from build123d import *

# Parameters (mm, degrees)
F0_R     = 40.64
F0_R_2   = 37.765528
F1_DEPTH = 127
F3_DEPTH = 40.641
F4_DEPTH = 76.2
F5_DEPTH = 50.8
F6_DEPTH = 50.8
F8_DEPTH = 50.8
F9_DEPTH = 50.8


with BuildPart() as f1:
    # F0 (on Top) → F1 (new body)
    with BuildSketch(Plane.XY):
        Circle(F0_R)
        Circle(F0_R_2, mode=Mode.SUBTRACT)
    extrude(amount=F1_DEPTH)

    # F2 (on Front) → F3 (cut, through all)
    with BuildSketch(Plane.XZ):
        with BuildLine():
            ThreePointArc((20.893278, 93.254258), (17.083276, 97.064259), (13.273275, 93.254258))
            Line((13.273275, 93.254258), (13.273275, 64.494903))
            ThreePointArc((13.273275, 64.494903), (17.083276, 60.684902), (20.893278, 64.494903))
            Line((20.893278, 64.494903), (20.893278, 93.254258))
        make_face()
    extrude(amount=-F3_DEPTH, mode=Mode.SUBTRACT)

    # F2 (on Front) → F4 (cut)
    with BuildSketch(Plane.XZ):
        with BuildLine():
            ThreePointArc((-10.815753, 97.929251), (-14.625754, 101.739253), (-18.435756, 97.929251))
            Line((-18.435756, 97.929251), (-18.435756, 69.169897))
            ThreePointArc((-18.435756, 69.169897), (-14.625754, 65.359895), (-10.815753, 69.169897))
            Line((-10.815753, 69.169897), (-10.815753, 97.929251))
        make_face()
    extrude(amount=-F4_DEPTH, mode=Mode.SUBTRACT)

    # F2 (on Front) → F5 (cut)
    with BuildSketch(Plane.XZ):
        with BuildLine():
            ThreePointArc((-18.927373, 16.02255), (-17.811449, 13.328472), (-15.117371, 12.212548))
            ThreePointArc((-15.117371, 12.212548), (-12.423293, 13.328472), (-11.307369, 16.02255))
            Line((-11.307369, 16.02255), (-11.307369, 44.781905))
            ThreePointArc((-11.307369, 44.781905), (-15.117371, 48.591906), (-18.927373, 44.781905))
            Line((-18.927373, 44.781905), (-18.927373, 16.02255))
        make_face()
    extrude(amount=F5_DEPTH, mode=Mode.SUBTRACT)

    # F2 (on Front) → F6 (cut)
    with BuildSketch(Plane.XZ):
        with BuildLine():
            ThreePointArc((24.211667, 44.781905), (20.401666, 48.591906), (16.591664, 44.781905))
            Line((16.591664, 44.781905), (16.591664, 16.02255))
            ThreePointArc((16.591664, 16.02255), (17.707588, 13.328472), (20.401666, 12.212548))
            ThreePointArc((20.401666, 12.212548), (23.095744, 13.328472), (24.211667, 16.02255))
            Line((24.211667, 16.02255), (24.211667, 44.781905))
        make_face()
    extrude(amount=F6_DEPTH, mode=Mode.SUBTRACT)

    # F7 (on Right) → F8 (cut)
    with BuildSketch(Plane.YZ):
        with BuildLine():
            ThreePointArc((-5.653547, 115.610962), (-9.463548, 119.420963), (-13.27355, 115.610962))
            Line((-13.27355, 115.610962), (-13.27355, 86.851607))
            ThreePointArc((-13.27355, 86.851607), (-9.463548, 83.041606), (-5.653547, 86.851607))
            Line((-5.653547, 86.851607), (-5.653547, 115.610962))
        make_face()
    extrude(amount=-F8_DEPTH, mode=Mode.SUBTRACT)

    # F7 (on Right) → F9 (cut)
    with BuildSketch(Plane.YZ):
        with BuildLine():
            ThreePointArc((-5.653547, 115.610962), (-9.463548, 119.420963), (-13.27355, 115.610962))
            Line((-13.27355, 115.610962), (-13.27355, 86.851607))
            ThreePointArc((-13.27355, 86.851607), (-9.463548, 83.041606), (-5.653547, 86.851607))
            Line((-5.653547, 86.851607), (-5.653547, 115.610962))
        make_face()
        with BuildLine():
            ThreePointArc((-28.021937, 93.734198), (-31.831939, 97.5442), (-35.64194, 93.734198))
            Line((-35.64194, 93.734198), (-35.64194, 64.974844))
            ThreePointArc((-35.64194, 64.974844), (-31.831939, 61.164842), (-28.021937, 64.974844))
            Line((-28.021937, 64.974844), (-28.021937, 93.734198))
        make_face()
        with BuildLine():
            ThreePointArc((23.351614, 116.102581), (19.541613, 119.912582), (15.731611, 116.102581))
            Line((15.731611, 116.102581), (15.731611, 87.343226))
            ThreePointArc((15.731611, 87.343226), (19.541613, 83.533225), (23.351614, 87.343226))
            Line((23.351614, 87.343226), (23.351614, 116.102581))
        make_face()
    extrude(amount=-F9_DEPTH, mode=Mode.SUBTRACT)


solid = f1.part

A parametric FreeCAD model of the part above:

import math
import FreeCAD as App
import Part
import Sketcher
Q = App.Units.Quantity

doc = App.newDocument("Part")
body = doc.addObject("PartDesign::Body", "Body")

sketch1 = body.newObject("Sketcher::SketchObject", "Sketch")
sketch1.AttachmentSupport = (doc.getObject("XY_Plane"), [""])
sketch1.MapMode = "FlatFace"
sketch1.addGeometry(Part.Circle(App.Vector(0, 0, 0), App.Vector(0, 0, 1), 40.64), False)
sketch1.addGeometry(Part.Circle(App.Vector(0, 0, 0), App.Vector(0, 0, 1), 37.765528), False)
sketch1.addConstraint(Sketcher.Constraint("Coincident", 0, 3, -1, 1))
sketch1.addConstraint(Sketcher.Constraint("Coincident", 1, 3, -1, 1))
sketch1.addConstraint(Sketcher.Constraint("Diameter", 0, Q("3.2 in")))
sketch1.addConstraint(Sketcher.Constraint("Diameter", 1, Q("75.531056 mm")))
pad1 = body.newObject("PartDesign::Pad", "Pad")
pad1.Profile = sketch1
pad1.Length = Q("5 in")

sketch2 = body.newObject("Sketcher::SketchObject", "Sketch001")
sketch2.AttachmentSupport = (doc.getObject("XZ_Plane"), [""])
sketch2.MapMode = "FlatFace"
sketch2.addGeometry(Part.ArcOfCircle(Part.Circle(App.Vector(17.083277, 93.254257, 0), App.Vector(0, 0, 1), 3.810001), math.radians(0.000008), math.radians(179.999992)), False)
sketch2.addGeometry(Part.LineSegment(App.Vector(13.273275, 93.254258, 0), App.Vector(13.273275, 64.494903, 0)), False)
sketch2.addGeometry(Part.ArcOfCircle(Part.Circle(App.Vector(17.083277, 64.494904, 0), App.Vector(0, 0, 1), 3.810001), math.radians(-179.999992), math.radians(-0.000008)), False)
sketch2.addGeometry(Part.LineSegment(App.Vector(20.893278, 64.494903, 0), App.Vector(20.893278, 93.254258, 0)), False)
sketch2.addConstraint(Sketcher.Constraint("Tangent", 0, 2, 1, 1))
sketch2.addConstraint(Sketcher.Constraint("Tangent", 1, 2, 2, 1))
sketch2.addConstraint(Sketcher.Constraint("Tangent", 2, 2, 3, 1))
sketch2.addConstraint(Sketcher.Constraint("Tangent", 3, 2, 0, 1))
sketch2.addConstraint(Sketcher.Constraint("Vertical", 1))
sketch2.addConstraint(Sketcher.Constraint("Vertical", 3))
sketch2.addConstraint(Sketcher.Constraint("Radius", 0, Q("0.1500001 in")))
sketch2.addConstraint(Sketcher.Constraint("DistanceY", 1, 2, 1, 1, Q("28.759355 mm")))
sketch2.addConstraint(Sketcher.Constraint("DistanceX", -1, 1, 0, 3, Q("17.083277 mm")))
sketch2.addConstraint(Sketcher.Constraint("DistanceY", -1, 1, 0, 3, Q("93.254257 mm")))
pocket1 = body.newObject("PartDesign::Pocket", "Pocket")
pocket1.Profile = sketch2
pocket1.Type = "ThroughAll"

sketch3 = body.newObject("Sketcher::SketchObject", "Sketch002")
sketch3.AttachmentSupport = (doc.getObject("XZ_Plane"), [""])
sketch3.MapMode = "FlatFace"
sketch3.addGeometry(Part.ArcOfCircle(Part.Circle(App.Vector(-14.625754, 97.929252, 0), App.Vector(0, 0, 1), 3.810001), math.radians(-0.000008), math.radians(180.000008)), False)
sketch3.addGeometry(Part.LineSegment(App.Vector(-18.435756, 97.929251, 0), App.Vector(-18.435756, 69.169897, 0)), False)
sketch3.addGeometry(Part.ArcOfCircle(Part.Circle(App.Vector(-14.625754, 69.169896, 0), App.Vector(0, 0, 1), 3.810001), math.radians(179.999992), math.radians(360.000008)), False)
sketch3.addGeometry(Part.LineSegment(App.Vector(-10.815753, 69.169897, 0), App.Vector(-10.815753, 97.929251, 0)), False)
sketch3.addConstraint(Sketcher.Constraint("Tangent", 0, 2, 1, 1))
sketch3.addConstraint(Sketcher.Constraint("Tangent", 1, 2, 2, 1))
sketch3.addConstraint(Sketcher.Constraint("Tangent", 2, 2, 3, 1))
sketch3.addConstraint(Sketcher.Constraint("Tangent", 3, 2, 0, 1))
sketch3.addConstraint(Sketcher.Constraint("Vertical", 1))
sketch3.addConstraint(Sketcher.Constraint("Vertical", 3))
sketch3.addConstraint(Sketcher.Constraint("Radius", 0, Q("0.1500001 in")))
sketch3.addConstraint(Sketcher.Constraint("DistanceY", 1, 2, 1, 1, Q("28.759354 mm")))
sketch3.addConstraint(Sketcher.Constraint("DistanceY", -1, 1, 0, 3, Q("97.929252 mm")))
sketch3.addConstraint(Sketcher.Constraint("DistanceX", 0, 3, -1, 1, Q("14.625754 mm")))
pocket2 = body.newObject("PartDesign::Pocket", "Pocket001")
pocket2.Profile = sketch3
pocket2.Length = Q("3 in")

sketch4 = body.newObject("Sketcher::SketchObject", "Sketch003")
sketch4.AttachmentSupport = (doc.getObject("XZ_Plane"), [""])
sketch4.MapMode = "FlatFace"
sketch4.addGeometry(Part.ArcOfCircle(Part.Circle(App.Vector(-15.11737, 16.022551, 0), App.Vector(0, 0, 1), 3.810003), math.radians(-179.999987), math.radians(-90.000013)), False)
sketch4.addGeometry(Part.ArcOfCircle(Part.Circle(App.Vector(-15.117372, 16.022551, 0), App.Vector(0, 0, 1), 3.810003), math.radians(-89.999987), math.radians(-0.000013)), False)
sketch4.addGeometry(Part.LineSegment(App.Vector(-11.307369, 16.02255, 0), App.Vector(-11.307369, 44.781905, 0)), False)
sketch4.addGeometry(Part.ArcOfCircle(Part.Circle(App.Vector(-15.117371, 44.781904, 0), App.Vector(0, 0, 1), 3.810002), math.radians(0.000015), math.radians(179.999985)), False)
sketch4.addGeometry(Part.LineSegment(App.Vector(-18.927373, 44.781905, 0), App.Vector(-18.927373, 16.02255, 0)), False)
sketch4.addConstraint(Sketcher.Constraint("Tangent", 0, 2, 1, 1))
sketch4.addConstraint(Sketcher.Constraint("Tangent", 1, 2, 2, 1))
sketch4.addConstraint(Sketcher.Constraint("Tangent", 2, 2, 3, 1))
sketch4.addConstraint(Sketcher.Constraint("Tangent", 3, 2, 4, 1))
sketch4.addConstraint(Sketcher.Constraint("Tangent", 4, 2, 0, 1))
sketch4.addConstraint(Sketcher.Constraint("Vertical", 2))
sketch4.addConstraint(Sketcher.Constraint("Vertical", 4))
sketch4.addConstraint(Sketcher.Constraint("Equal", 0, 1))
sketch4.addConstraint(Sketcher.Constraint("Vertical", 3, 3, 0, 2))
sketch4.addConstraint(Sketcher.Constraint("Radius", 0, Q("0.1500001 in")))
sketch4.addConstraint(Sketcher.Constraint("DistanceY", 2, 1, 2, 2, Q("28.759355 mm")))
sketch4.addConstraint(Sketcher.Constraint("DistanceX", 0, 3, -1, 1, Q("15.11737 mm")))
sketch4.addConstraint(Sketcher.Constraint("DistanceY", -1, 1, 0, 3, Q("16.022551 mm")))
pocket3 = body.newObject("PartDesign::Pocket", "Pocket002")
pocket3.Profile = sketch4
pocket3.Length = Q("2 in")
pocket3.Reversed = True

sketch5 = body.newObject("Sketcher::SketchObject", "Sketch004")
sketch5.AttachmentSupport = (doc.getObject("XZ_Plane"), [""])
sketch5.MapMode = "FlatFace"
sketch5.addGeometry(Part.ArcOfCircle(Part.Circle(App.Vector(20.401666, 44.781905, 0), App.Vector(0, 0, 1), 3.810001), math.radians(0.000008), math.radians(179.999992)), False)
sketch5.addGeometry(Part.LineSegment(App.Vector(16.591664, 44.781905, 0), App.Vector(16.591664, 16.02255, 0)), False)
sketch5.addGeometry(Part.ArcOfCircle(Part.Circle(App.Vector(20.401667, 16.022551, 0), App.Vector(0, 0, 1), 3.810003), math.radians(-179.999987), math.radians(-90.000013)), False)
sketch5.addGeometry(Part.ArcOfCircle(Part.Circle(App.Vector(20.401666, 16.022549, 0), App.Vector(0, 0, 1), 3.810001), math.radians(-89.999998), math.radians(0.000013)), False)
sketch5.addGeometry(Part.LineSegment(App.Vector(24.211667, 16.02255, 0), App.Vector(24.211667, 44.781905, 0)), False)
sketch5.addConstraint(Sketcher.Constraint("Tangent", 0, 2, 1, 1))
sketch5.addConstraint(Sketcher.Constraint("Tangent", 1, 2, 2, 1))
sketch5.addConstraint(Sketcher.Constraint("Tangent", 2, 2, 3, 1))
sketch5.addConstraint(Sketcher.Constraint("Tangent", 3, 2, 4, 1))
sketch5.addConstraint(Sketcher.Constraint("Tangent", 4, 2, 0, 1))
sketch5.addConstraint(Sketcher.Constraint("Vertical", 1))
sketch5.addConstraint(Sketcher.Constraint("Vertical", 4))
sketch5.addConstraint(Sketcher.Constraint("Equal", 0, 2))
sketch5.addConstraint(Sketcher.Constraint("Vertical", 3, 3, 2, 2))
sketch5.addConstraint(Sketcher.Constraint("Radius", 0, Q("0.1500001 in")))
sketch5.addConstraint(Sketcher.Constraint("DistanceY", 1, 2, 1, 1, Q("28.759355 mm")))
sketch5.addConstraint(Sketcher.Constraint("DistanceY", -1, 1, 2, 3, Q("16.022551 mm")))
sketch5.addConstraint(Sketcher.Constraint("DistanceX", -1, 1, 0, 3, Q("20.401666 mm")))
pocket4 = body.newObject("PartDesign::Pocket", "Pocket003")
pocket4.Profile = sketch5
pocket4.Length = Q("2 in")
pocket4.Reversed = True

sketch6 = body.newObject("Sketcher::SketchObject", "Sketch005")
sketch6.AttachmentSupport = (doc.getObject("YZ_Plane"), [""])
sketch6.MapMode = "FlatFace"
sketch6.addGeometry(Part.ArcOfCircle(Part.Circle(App.Vector(-9.463548, 115.610962, 0), App.Vector(0, 0, 1), 3.810001), math.radians(0.000008), math.radians(179.999992)), False)
sketch6.addGeometry(Part.LineSegment(App.Vector(-13.27355, 115.610962, 0), App.Vector(-13.27355, 86.851607, 0)), False)
sketch6.addGeometry(Part.ArcOfCircle(Part.Circle(App.Vector(-9.463548, 86.851608, 0), App.Vector(0, 0, 1), 3.810001), math.radians(-179.999992), math.radians(-0.000008)), False)
sketch6.addGeometry(Part.LineSegment(App.Vector(-5.653547, 86.851607, 0), App.Vector(-5.653547, 115.610962, 0)), False)
sketch6.addConstraint(Sketcher.Constraint("Tangent", 0, 2, 1, 1))
sketch6.addConstraint(Sketcher.Constraint("Tangent", 1, 2, 2, 1))
sketch6.addConstraint(Sketcher.Constraint("Tangent", 2, 2, 3, 1))
sketch6.addConstraint(Sketcher.Constraint("Tangent", 3, 2, 0, 1))
sketch6.addConstraint(Sketcher.Constraint("Vertical", 1))
sketch6.addConstraint(Sketcher.Constraint("Vertical", 3))
sketch6.addConstraint(Sketcher.Constraint("Radius", 0, Q("0.1500001 in")))
sketch6.addConstraint(Sketcher.Constraint("DistanceY", 1, 2, 1, 1, Q("28.759355 mm")))
sketch6.addConstraint(Sketcher.Constraint("DistanceX", 0, 3, -1, 1, Q("9.463548 mm")))
sketch6.addConstraint(Sketcher.Constraint("DistanceY", -1, 1, 0, 3, Q("115.610962 mm")))
pocket5 = body.newObject("PartDesign::Pocket", "Pocket004")
pocket5.Profile = sketch6
pocket5.Length = Q("2 in")

sketch7 = body.newObject("Sketcher::SketchObject", "Sketch006")
sketch7.AttachmentSupport = (doc.getObject("YZ_Plane"), [""])
sketch7.MapMode = "FlatFace"
sketch7.addGeometry(Part.ArcOfCircle(Part.Circle(App.Vector(-9.463548, 115.610962, 0), App.Vector(0, 0, 1), 3.810001), math.radians(0.000008), math.radians(179.999992)), False)
sketch7.addGeometry(Part.LineSegment(App.Vector(-13.27355, 115.610962, 0), App.Vector(-13.27355, 86.851607, 0)), False)
sketch7.addGeometry(Part.ArcOfCircle(Part.Circle(App.Vector(-9.463548, 86.851608, 0), App.Vector(0, 0, 1), 3.810001), math.radians(-179.999992), math.radians(-0.000008)), False)
sketch7.addGeometry(Part.LineSegment(App.Vector(-5.653547, 86.851607, 0), App.Vector(-5.653547, 115.610962, 0)), False)
sketch7.addGeometry(Part.ArcOfCircle(Part.Circle(App.Vector(-31.831938, 93.734199, 0), App.Vector(0, 0, 1), 3.810001), math.radians(-0.000008), math.radians(180.000008)), False)
sketch7.addGeometry(Part.LineSegment(App.Vector(-35.64194, 93.734198, 0), App.Vector(-35.64194, 64.974844, 0)), False)
sketch7.addGeometry(Part.ArcOfCircle(Part.Circle(App.Vector(-31.831938, 64.974844, 0), App.Vector(0, 0, 1), 3.810001), math.radians(179.999992), math.radians(360.000008)), False)
sketch7.addGeometry(Part.LineSegment(App.Vector(-28.021937, 64.974844, 0), App.Vector(-28.021937, 93.734198, 0)), False)
sketch7.addGeometry(Part.ArcOfCircle(Part.Circle(App.Vector(19.541612, 116.102581, 0), App.Vector(0, 0, 1), 3.810001), math.radians(0.000008), math.radians(179.999992)), False)
sketch7.addGeometry(Part.LineSegment(App.Vector(15.731611, 116.102581, 0), App.Vector(15.731611, 87.343226, 0)), False)
sketch7.addGeometry(Part.ArcOfCircle(Part.Circle(App.Vector(19.541612, 87.343227, 0), App.Vector(0, 0, 1), 3.810001), math.radians(-179.999992), math.radians(-0.000008)), False)
sketch7.addGeometry(Part.LineSegment(App.Vector(23.351614, 87.343226, 0), App.Vector(23.351614, 116.102581, 0)), False)
sketch7.addConstraint(Sketcher.Constraint("Tangent", 0, 2, 1, 1))
sketch7.addConstraint(Sketcher.Constraint("Tangent", 1, 2, 2, 1))
sketch7.addConstraint(Sketcher.Constraint("Tangent", 2, 2, 3, 1))
sketch7.addConstraint(Sketcher.Constraint("Tangent", 3, 2, 0, 1))
sketch7.addConstraint(Sketcher.Constraint("Tangent", 4, 2, 5, 1))
sketch7.addConstraint(Sketcher.Constraint("Tangent", 5, 2, 6, 1))
sketch7.addConstraint(Sketcher.Constraint("Tangent", 6, 2, 7, 1))
sketch7.addConstraint(Sketcher.Constraint("Tangent", 7, 2, 4, 1))
sketch7.addConstraint(Sketcher.Constraint("Tangent", 8, 2, 9, 1))
sketch7.addConstraint(Sketcher.Constraint("Tangent", 9, 2, 10, 1))
sketch7.addConstraint(Sketcher.Constraint("Tangent", 10, 2, 11, 1))
sketch7.addConstraint(Sketcher.Constraint("Tangent", 11, 2, 8, 1))
sketch7.addConstraint(Sketcher.Constraint("Vertical", 1))
sketch7.addConstraint(Sketcher.Constraint("Vertical", 3))
sketch7.addConstraint(Sketcher.Constraint("Vertical", 5))
sketch7.addConstraint(Sketcher.Constraint("Vertical", 7))
sketch7.addConstraint(Sketcher.Constraint("Vertical", 9))
sketch7.addConstraint(Sketcher.Constraint("Vertical", 11))
sketch7.addConstraint(Sketcher.Constraint("Equal", 2, 4))
sketch7.addConstraint(Sketcher.Constraint("Equal", 6, 8))
sketch7.addConstraint(Sketcher.Constraint("Equal", 3, 5))
sketch7.addConstraint(Sketcher.Constraint("Equal", 7, 9))
sketch7.addConstraint(Sketcher.Constraint("Radius", 0, Q("0.1500001 in")))
sketch7.addConstraint(Sketcher.Constraint("DistanceY", -1, 1, 4, 3, Q("93.734199 mm")))
sketch7.addConstraint(Sketcher.Constraint("DistanceY", 1, 2, 1, 1, Q("28.759355 mm")))
sketch7.addConstraint(Sketcher.Constraint("DistanceX", 0, 3, -1, 1, Q("9.463548 mm")))
sketch7.addConstraint(Sketcher.Constraint("DistanceY", -1, 1, 0, 3, Q("115.610962 mm")))
sketch7.addConstraint(Sketcher.Constraint("DistanceX", 4, 3, -1, 1, Q("31.831938 mm")))
sketch7.addConstraint(Sketcher.Constraint("DistanceY", -1, 1, 8, 3, Q("116.102581 mm")))
sketch7.addConstraint(Sketcher.Constraint("DistanceX", -1, 1, 8, 2, Q("15.731611 mm")))
pocket6 = body.newObject("PartDesign::Pocket", "Pocket005")
pocket6.Profile = sketch7
pocket6.Length = Q("2 in")

doc.recompute()
